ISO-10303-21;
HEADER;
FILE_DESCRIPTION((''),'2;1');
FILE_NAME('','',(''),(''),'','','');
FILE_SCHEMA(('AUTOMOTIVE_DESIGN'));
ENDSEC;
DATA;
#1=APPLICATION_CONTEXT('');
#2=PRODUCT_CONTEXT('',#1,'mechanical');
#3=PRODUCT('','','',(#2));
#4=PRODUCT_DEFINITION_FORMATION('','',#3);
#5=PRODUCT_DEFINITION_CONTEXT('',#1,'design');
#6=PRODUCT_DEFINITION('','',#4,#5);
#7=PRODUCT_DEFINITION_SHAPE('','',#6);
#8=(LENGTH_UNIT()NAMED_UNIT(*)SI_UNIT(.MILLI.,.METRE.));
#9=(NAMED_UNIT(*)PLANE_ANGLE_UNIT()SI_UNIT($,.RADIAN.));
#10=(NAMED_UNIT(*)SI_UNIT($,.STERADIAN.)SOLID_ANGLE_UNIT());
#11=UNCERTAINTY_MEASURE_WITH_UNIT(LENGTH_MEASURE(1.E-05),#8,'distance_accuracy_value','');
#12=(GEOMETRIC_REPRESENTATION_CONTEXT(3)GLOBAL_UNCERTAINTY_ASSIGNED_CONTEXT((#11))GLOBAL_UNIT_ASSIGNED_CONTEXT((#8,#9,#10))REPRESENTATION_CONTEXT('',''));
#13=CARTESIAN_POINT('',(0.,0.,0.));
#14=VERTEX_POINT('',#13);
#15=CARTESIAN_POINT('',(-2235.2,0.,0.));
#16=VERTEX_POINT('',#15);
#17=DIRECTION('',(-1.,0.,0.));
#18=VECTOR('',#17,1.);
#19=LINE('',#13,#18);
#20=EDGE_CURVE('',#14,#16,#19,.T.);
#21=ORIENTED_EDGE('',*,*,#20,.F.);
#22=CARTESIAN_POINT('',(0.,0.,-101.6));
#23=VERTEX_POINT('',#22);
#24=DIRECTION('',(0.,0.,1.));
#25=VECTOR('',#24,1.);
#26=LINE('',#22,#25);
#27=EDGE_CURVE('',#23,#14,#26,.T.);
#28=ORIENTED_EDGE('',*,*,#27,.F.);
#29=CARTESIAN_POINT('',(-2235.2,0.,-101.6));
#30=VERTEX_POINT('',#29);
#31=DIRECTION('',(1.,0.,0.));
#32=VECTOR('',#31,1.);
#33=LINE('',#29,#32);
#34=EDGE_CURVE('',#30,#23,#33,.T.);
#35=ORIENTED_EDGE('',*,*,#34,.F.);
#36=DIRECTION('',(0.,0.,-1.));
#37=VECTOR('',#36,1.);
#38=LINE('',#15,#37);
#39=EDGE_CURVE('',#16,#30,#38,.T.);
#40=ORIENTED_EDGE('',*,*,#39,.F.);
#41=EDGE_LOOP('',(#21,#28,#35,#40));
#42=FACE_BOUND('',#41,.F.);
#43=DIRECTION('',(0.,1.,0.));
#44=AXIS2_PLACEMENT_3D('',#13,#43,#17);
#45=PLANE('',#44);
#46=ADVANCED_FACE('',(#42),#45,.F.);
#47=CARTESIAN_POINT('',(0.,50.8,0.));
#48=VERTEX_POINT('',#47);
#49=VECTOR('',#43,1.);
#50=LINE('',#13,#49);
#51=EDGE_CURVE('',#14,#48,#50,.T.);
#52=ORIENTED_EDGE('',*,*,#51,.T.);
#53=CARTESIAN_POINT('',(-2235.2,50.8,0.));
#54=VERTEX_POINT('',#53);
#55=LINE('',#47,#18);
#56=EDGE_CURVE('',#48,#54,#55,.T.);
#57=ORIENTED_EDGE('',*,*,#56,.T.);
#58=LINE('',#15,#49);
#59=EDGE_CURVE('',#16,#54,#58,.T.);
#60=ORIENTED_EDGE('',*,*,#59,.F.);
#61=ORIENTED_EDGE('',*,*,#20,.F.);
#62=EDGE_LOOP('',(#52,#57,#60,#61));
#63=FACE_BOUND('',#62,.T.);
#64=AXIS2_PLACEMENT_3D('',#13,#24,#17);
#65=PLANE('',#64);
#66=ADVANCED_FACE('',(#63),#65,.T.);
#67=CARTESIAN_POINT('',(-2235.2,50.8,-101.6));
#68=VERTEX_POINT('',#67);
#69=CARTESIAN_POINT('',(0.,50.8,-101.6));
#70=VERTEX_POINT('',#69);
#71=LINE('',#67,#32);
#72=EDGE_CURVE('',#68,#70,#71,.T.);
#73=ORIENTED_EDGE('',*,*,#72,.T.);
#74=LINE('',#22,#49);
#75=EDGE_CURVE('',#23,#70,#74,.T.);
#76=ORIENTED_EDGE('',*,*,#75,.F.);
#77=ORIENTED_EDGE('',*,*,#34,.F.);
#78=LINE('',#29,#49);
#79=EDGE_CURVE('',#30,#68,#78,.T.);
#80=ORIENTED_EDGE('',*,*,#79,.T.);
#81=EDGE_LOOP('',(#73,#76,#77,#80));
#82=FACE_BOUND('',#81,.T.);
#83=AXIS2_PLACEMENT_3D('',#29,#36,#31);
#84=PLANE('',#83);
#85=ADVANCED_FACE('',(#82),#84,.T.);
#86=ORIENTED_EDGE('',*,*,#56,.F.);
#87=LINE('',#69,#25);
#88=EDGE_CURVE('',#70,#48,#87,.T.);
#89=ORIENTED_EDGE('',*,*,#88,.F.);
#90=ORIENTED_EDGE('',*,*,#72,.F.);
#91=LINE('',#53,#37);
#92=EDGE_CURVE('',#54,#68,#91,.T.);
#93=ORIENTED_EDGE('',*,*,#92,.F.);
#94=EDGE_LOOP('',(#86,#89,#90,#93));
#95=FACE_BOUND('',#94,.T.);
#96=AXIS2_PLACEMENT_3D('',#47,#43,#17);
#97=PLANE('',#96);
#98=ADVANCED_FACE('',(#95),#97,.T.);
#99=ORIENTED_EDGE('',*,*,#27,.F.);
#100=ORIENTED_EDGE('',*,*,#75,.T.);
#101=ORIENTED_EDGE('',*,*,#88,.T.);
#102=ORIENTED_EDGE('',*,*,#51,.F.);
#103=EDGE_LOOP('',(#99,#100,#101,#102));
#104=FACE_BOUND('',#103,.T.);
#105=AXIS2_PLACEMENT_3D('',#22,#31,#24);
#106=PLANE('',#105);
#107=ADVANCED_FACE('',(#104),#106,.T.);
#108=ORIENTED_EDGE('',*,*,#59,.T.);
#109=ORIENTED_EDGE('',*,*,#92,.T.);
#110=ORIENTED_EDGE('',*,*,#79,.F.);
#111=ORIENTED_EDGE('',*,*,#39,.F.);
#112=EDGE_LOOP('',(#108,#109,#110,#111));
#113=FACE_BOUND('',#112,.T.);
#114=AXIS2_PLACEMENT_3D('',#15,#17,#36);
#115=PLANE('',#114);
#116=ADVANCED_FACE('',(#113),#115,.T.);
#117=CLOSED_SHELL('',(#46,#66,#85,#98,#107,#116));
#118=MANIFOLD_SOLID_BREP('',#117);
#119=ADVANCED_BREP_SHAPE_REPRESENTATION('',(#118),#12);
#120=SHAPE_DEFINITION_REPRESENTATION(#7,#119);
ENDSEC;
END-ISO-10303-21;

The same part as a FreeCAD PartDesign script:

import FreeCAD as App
import Part
import Sketcher

V = App.Vector
Q = App.Units.Quantity

doc = App.newDocument("Part")
body = doc.addObject("PartDesign::Body", "Body")

sketch1 = doc.addObject("Sketcher::SketchObject", "Sketch")
body.addObject(sketch1)
sketch1.AttachmentSupport = (doc.XZ_Plane, [""])
sketch1.MapMode = "FlatFace"
sketch1.addGeometry([
    Part.LineSegment(V(-2235.2, 0, 0), V(0, 0, 0)),
    Part.LineSegment(V(0, 0, 0), V(0, -101.6, 0)),
    Part.LineSegment(V(0, -101.6, 0), V(-2235.2, -101.6, 0)),
    Part.LineSegment(V(-2235.2, -101.6, 0), V(-2235.2, 0, 0)),
], False)
sketch1.addConstraint([
    Sketcher.Constraint("Coincident", 0, 2, 1, 1),
    Sketcher.Constraint("Coincident", 1, 2, 2, 1),
    Sketcher.Constraint("Coincident", 2, 2, 3, 1),
    Sketcher.Constraint("Coincident", 3, 2, 0, 1),
    Sketcher.Constraint("Horizontal", 0),
    Sketcher.Constraint("Vertical", 1),
    Sketcher.Constraint("Horizontal", 2),
    Sketcher.Constraint("Vertical", 3),
    Sketcher.Constraint("Coincident", 0, 2, -1, 1),
    Sketcher.Constraint("DistanceX", 0, 1, 0, 2, Q("88 in")),
    Sketcher.Constraint("DistanceY", 1, 2, 1, 1, Q("4 in")),
])
pad1 = doc.addObject("PartDesign::Pad", "Pad")
body.addObject(pad1)
pad1.Profile = sketch1
pad1.Length = Q("2 in")
pad1.Reversed = True

doc.recompute()
